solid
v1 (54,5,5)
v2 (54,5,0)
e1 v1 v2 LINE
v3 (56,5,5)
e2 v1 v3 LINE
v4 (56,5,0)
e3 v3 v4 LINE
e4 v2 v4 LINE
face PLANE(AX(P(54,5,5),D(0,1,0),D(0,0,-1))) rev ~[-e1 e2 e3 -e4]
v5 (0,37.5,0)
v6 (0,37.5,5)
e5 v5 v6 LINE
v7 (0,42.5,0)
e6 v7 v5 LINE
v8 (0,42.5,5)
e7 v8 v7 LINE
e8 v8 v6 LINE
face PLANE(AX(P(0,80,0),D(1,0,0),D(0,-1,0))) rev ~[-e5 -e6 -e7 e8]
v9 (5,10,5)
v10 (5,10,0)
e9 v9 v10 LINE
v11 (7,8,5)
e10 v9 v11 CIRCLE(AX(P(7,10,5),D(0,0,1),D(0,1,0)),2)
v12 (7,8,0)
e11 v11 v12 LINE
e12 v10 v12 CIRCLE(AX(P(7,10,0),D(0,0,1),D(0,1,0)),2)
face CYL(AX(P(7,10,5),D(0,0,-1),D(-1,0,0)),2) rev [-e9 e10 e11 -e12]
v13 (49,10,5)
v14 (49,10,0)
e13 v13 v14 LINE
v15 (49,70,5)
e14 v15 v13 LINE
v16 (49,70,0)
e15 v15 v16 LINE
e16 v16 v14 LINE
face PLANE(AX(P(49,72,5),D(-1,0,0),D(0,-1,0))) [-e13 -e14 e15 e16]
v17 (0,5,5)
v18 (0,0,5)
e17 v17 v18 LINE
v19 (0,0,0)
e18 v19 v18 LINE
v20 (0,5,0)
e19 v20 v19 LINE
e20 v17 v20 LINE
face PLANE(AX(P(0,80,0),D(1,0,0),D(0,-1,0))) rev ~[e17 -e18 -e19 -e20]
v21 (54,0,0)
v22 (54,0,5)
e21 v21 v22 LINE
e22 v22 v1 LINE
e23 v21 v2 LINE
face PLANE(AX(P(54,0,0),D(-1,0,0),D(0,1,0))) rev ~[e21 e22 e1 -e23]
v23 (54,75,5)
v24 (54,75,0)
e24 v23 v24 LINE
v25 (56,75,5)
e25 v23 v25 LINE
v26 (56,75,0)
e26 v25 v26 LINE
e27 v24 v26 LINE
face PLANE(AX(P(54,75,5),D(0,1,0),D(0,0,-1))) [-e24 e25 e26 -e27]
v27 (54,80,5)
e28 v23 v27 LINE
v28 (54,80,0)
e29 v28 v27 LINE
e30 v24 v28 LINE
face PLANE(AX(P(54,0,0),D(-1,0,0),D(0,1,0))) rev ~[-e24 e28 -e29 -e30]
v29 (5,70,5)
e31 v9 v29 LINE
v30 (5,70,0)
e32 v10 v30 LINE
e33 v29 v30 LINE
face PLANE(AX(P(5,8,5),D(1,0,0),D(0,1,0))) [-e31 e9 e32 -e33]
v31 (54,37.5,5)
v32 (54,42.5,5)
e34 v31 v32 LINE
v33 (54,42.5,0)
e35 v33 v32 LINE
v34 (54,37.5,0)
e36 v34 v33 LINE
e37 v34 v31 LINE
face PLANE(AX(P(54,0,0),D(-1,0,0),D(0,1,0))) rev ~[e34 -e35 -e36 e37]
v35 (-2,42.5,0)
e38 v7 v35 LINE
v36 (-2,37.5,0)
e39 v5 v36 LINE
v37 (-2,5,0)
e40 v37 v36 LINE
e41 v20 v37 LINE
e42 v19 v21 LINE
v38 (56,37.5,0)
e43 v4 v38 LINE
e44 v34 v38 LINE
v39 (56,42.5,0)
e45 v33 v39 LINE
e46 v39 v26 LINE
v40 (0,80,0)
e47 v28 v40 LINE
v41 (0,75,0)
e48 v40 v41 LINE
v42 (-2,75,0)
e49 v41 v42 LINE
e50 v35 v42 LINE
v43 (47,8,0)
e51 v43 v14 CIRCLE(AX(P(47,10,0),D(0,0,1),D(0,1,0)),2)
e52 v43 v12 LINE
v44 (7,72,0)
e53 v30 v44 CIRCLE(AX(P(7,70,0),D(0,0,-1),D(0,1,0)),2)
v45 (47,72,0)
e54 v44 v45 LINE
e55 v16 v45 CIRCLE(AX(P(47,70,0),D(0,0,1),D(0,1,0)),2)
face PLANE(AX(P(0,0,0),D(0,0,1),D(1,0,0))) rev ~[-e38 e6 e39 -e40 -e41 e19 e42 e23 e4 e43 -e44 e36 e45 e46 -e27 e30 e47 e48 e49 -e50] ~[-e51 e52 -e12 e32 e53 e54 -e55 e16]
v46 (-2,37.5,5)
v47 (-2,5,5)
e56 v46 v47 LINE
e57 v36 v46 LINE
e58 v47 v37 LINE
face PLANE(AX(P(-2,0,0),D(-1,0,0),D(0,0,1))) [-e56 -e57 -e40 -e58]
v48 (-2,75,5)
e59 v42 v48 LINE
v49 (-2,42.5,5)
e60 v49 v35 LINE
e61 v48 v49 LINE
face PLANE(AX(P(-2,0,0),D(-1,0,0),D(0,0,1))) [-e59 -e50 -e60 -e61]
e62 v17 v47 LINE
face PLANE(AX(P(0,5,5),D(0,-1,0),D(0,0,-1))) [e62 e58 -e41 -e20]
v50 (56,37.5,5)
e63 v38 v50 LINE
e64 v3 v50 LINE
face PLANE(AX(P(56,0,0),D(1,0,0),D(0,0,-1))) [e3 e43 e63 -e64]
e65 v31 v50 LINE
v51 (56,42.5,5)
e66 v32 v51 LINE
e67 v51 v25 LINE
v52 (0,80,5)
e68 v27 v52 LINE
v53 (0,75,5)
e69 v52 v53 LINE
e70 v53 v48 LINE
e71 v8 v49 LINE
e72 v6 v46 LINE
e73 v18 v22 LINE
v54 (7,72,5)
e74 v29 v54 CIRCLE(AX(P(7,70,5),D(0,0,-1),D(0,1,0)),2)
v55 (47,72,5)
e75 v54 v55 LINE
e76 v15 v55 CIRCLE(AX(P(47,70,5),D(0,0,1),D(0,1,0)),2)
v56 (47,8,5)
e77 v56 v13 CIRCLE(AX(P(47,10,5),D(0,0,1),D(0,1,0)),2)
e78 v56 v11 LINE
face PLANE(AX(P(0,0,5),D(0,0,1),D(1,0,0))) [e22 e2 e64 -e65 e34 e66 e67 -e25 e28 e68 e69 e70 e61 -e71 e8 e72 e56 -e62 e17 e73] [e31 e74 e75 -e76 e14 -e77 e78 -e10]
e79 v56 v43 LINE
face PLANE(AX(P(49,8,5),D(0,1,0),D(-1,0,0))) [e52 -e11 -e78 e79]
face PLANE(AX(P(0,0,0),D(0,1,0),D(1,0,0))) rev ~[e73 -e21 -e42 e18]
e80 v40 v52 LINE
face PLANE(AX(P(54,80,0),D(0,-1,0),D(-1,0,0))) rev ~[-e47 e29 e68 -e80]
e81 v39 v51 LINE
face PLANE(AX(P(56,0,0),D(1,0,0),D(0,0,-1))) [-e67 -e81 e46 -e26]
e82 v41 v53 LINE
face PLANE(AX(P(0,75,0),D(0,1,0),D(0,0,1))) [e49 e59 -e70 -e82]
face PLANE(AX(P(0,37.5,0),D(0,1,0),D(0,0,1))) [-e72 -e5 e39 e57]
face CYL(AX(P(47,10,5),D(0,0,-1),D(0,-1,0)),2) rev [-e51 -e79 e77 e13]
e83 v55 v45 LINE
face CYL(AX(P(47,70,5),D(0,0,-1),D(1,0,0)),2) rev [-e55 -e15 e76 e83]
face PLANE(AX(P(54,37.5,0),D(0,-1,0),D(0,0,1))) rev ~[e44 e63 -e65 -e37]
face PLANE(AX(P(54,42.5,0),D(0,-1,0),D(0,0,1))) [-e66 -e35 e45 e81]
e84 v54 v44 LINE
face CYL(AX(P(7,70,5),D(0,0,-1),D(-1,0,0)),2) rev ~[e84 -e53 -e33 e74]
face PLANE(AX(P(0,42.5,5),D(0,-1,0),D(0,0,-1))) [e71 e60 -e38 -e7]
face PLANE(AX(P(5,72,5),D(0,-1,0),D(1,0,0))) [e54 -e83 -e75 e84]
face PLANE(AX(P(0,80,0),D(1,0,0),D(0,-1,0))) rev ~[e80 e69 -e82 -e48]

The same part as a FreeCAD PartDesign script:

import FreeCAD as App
import Part
import Sketcher
from FreeCAD import Vector
Q = App.Units.Quantity


def edges_at(feature, points):
    """Names of the edges that pass closest to the given points."""
    edges = feature.Shape.Edges
    near = lambda p: min(range(len(edges)), key=lambda i: edges[i].distToShape(Part.Vertex(*p))[0])
    return sorted({f"Edge{near(p) + 1}" for p in points})


def add_polygon(sketch, points):
    """Adds a closed chain of lines whose ends are joined by coincident constraints."""
    first, n = sketch.GeometryCount, len(points)
    for a, b in zip(points, points[1:] + points[:1]):
        sketch.addGeometry(Part.LineSegment(App.Vector(*a, 0), App.Vector(*b, 0)), False)
    for i in range(n):
        sketch.addConstraint(Sketcher.Constraint("Coincident", first + i, 2, first + (i + 1) % n, 1))

doc = App.newDocument("Part")
params = doc.addObject("Spreadsheet::Sheet", "Params")
for row, (alias, value) in enumerate([
    ("sketch1_width", "54 mm"),
    ("sketch1_height", "80 mm"),
    ("pad1_length", "5 mm"),
    ("sketch2_height", "5 mm"),
    ("sketch2_width", "32.5 mm"),
    ("pad2_length", "2 mm"),
    ("sketch3_height", "5 mm"),
    ("sketch3_width", "32.5 mm"),
    ("pad3_length", "2 mm"),
    ("sketch4_width", "44 mm"),
    ("sketch4_height", "64 mm"),
    ("fillet_radius", "2 mm"),
], start=1):
    params.set(f"A{row}", alias)
    params.set(f"B{row}", "=" + value)
    params.setAlias(f"B{row}", alias)

body = doc.addObject("PartDesign::Body", "Body")

# Sketch on XY plane
sketch1 = body.newObject("Sketcher::SketchObject", "Sketch")
sketch1.AttachmentSupport = (doc.getObject("XY_Plane"), [""])
sketch1.MapMode = "FlatFace"
add_polygon(sketch1, [(0, 80), (0, 0), (54, 0), (54, 80)])  # lines 0-3
sketch1.addConstraint([
    Sketcher.Constraint("Vertical", 0),
    Sketcher.Constraint("Horizontal", 1),
    Sketcher.Constraint("Vertical", 2),
    Sketcher.Constraint("Horizontal", 3),
    Sketcher.Constraint("Coincident", 0, 2, -1, 1),
    Sketcher.Constraint("DistanceX", 1, 1, 1, 2, Q("54 mm")),
    Sketcher.Constraint("DistanceY", 0, 2, 0, 1, Q("80 mm")),
])
sketch1.setExpression("Constraints[9]", "Params.sketch1_width")
sketch1.setExpression("Constraints[10]", "Params.sketch1_height")
pad1 = body.newObject("PartDesign::Pad", "Pad")
pad1.Profile = sketch1
pad1.setExpression("Length", "Params.pad1_length")

# Sketch on YZ plane
sketch2 = body.newObject("Sketcher::SketchObject", "Sketch001")
sketch2.AttachmentSupport = (doc.getObject("YZ_Plane"), [""])
sketch2.MapMode = "FlatFace"
sketch2.AttachmentOffset = App.Placement(Vector(0, 0, 54), App.Rotation())
add_polygon(sketch2, [(5, 5), (5, 0), (37.5, 0), (37.5, 5)])  # lines 0-3
add_polygon(sketch2, [(42.5, 5), (42.5, 0), (75, 0), (75, 5)])  # lines 4-7
sketch2.addConstraint([
    Sketcher.Constraint("Vertical", 0),
    Sketcher.Constraint("Horizontal", 1),
    Sketcher.Constraint("Vertical", 2),
    Sketcher.Constraint("Horizontal", 3),
    Sketcher.Constraint("Vertical", 4),
    Sketcher.Constraint("Horizontal", 5),
    Sketcher.Constraint("Vertical", 6),
    Sketcher.Constraint("Horizontal", 7),
    Sketcher.Constraint("PointOnObject", 0, 2, -1),
    Sketcher.Constraint("PointOnObject", 4, 2, -1),
    Sketcher.Constraint("Horizontal", 3, 2, 6, 2),
    Sketcher.Constraint("Equal", 3, 5),
    Sketcher.Constraint("DistanceY", 0, 2, 0, 1, Q("5 mm")),
    Sketcher.Constraint("DistanceX", -1, 1, 0, 2, Q("5 mm")),
    Sketcher.Constraint("DistanceX", 1, 2, 4, 2, Q("5 mm")),
    Sketcher.Constraint("DistanceX", 1, 1, 1, 2, Q("32.5 mm")),
])
sketch2.setExpression("Constraints[20]", "Params.sketch2_height")
sketch2.setExpression("Constraints[23]", "Params.sketch2_width")
pad2 = body.newObject("PartDesign::Pad", "Pad001")
pad2.Profile = sketch2
pad2.setExpression("Length", "Params.pad2_length")

# Sketch on YZ plane
sketch3 = body.newObject("Sketcher::SketchObject", "Sketch002")
sketch3.AttachmentSupport = (doc.getObject("YZ_Plane"), [""])
sketch3.MapMode = "FlatFace"
add_polygon(sketch3, [(75, 0), (42.5, 0), (42.5, 5), (75, 5)])  # lines 0-3
add_polygon(sketch3, [(5, 5), (37.5, 5), (37.5, 0), (5, 0)])  # lines 4-7
sketch3.addConstraint([
    Sketcher.Constraint("Horizontal", 0),
    Sketcher.Constraint("Vertical", 1),
    Sketcher.Constraint("Horizontal", 2),
    Sketcher.Constraint("Vertical", 3),
    Sketcher.Constraint("Horizontal", 4),
    Sketcher.Constraint("Vertical", 5),
    Sketcher.Constraint("Horizontal", 6),
    Sketcher.Constraint("Vertical", 7),
    Sketcher.Constraint("PointOnObject", 0, 2, -1),
    Sketcher.Constraint("PointOnObject", 5, 2, -1),
    Sketcher.Constraint("Horizontal", 2, 2, 4, 2),
    Sketcher.Constraint("Equal", 2, 4),
    Sketcher.Constraint("DistanceY", 1, 1, 1, 2, Q("5 mm")),
    Sketcher.Constraint("DistanceX", 0, 2, 0, 1, Q("32.5 mm")),
    Sketcher.Constraint("DistanceX", -1, 1, 2, 2, Q("75 mm")),
    Sketcher.Constraint("DistanceX", -1, 1, 6, 2, Q("5 mm")),
])
sketch3.setExpression("Constraints[20]", "Params.sketch3_height")
sketch3.setExpression("Constraints[21]", "Params.sketch3_width")
pad3 = body.newObject("PartDesign::Pad", "Pad002")
pad3.Profile = sketch3
pad3.setExpression("Length", "Params.pad3_length")
pad3.Reversed = True

# Sketch on XY plane
sketch4 = body.newObject("Sketcher::SketchObject", "Sketch003")
sketch4.AttachmentSupport = (doc.getObject("XY_Plane"), [""])
sketch4.MapMode = "FlatFace"
sketch4.AttachmentOffset = App.Placement(Vector(0, 0, 5), App.Rotation())
add_polygon(sketch4, [(49, 72), (5, 72), (5, 8), (49, 8)])  # lines 0-3
sketch4.addConstraint([
    Sketcher.Constraint("Horizontal", 0),
    Sketcher.Constraint("Vertical", 1),
    Sketcher.Constraint("Horizontal", 2),
    Sketcher.Constraint("Vertical", 3),
    Sketcher.Constraint("DistanceX", -1, 1, 0, 2, Q("5 mm")),
    Sketcher.Constraint("DistanceY", -1, 1, 1, 2, Q("8 mm")),
    Sketcher.Constraint("DistanceX", 0, 2, 0, 1, Q("44 mm")),
    Sketcher.Constraint("DistanceY", 1, 2, 1, 1, Q("64 mm")),
])
sketch4.setExpression("Constraints[10]", "Params.sketch4_width")
sketch4.setExpression("Constraints[11]", "Params.sketch4_height")
pocket1 = body.newObject("PartDesign::Pocket", "Pocket")
pocket1.Profile = sketch4
pocket1.Type = "ThroughAll"
doc.recompute()

fillet = body.newObject("PartDesign::Fillet", "Fillet")
fillet.Base = (pocket1, edges_at(pocket1, [
    (49, 72, 2.5),
    (5, 72, 2.5),
    (5, 8, 2.5),
    (49, 8, 2.5),
]))
fillet.setExpression("Radius", "Params.fillet_radius")

doc.recompute()
